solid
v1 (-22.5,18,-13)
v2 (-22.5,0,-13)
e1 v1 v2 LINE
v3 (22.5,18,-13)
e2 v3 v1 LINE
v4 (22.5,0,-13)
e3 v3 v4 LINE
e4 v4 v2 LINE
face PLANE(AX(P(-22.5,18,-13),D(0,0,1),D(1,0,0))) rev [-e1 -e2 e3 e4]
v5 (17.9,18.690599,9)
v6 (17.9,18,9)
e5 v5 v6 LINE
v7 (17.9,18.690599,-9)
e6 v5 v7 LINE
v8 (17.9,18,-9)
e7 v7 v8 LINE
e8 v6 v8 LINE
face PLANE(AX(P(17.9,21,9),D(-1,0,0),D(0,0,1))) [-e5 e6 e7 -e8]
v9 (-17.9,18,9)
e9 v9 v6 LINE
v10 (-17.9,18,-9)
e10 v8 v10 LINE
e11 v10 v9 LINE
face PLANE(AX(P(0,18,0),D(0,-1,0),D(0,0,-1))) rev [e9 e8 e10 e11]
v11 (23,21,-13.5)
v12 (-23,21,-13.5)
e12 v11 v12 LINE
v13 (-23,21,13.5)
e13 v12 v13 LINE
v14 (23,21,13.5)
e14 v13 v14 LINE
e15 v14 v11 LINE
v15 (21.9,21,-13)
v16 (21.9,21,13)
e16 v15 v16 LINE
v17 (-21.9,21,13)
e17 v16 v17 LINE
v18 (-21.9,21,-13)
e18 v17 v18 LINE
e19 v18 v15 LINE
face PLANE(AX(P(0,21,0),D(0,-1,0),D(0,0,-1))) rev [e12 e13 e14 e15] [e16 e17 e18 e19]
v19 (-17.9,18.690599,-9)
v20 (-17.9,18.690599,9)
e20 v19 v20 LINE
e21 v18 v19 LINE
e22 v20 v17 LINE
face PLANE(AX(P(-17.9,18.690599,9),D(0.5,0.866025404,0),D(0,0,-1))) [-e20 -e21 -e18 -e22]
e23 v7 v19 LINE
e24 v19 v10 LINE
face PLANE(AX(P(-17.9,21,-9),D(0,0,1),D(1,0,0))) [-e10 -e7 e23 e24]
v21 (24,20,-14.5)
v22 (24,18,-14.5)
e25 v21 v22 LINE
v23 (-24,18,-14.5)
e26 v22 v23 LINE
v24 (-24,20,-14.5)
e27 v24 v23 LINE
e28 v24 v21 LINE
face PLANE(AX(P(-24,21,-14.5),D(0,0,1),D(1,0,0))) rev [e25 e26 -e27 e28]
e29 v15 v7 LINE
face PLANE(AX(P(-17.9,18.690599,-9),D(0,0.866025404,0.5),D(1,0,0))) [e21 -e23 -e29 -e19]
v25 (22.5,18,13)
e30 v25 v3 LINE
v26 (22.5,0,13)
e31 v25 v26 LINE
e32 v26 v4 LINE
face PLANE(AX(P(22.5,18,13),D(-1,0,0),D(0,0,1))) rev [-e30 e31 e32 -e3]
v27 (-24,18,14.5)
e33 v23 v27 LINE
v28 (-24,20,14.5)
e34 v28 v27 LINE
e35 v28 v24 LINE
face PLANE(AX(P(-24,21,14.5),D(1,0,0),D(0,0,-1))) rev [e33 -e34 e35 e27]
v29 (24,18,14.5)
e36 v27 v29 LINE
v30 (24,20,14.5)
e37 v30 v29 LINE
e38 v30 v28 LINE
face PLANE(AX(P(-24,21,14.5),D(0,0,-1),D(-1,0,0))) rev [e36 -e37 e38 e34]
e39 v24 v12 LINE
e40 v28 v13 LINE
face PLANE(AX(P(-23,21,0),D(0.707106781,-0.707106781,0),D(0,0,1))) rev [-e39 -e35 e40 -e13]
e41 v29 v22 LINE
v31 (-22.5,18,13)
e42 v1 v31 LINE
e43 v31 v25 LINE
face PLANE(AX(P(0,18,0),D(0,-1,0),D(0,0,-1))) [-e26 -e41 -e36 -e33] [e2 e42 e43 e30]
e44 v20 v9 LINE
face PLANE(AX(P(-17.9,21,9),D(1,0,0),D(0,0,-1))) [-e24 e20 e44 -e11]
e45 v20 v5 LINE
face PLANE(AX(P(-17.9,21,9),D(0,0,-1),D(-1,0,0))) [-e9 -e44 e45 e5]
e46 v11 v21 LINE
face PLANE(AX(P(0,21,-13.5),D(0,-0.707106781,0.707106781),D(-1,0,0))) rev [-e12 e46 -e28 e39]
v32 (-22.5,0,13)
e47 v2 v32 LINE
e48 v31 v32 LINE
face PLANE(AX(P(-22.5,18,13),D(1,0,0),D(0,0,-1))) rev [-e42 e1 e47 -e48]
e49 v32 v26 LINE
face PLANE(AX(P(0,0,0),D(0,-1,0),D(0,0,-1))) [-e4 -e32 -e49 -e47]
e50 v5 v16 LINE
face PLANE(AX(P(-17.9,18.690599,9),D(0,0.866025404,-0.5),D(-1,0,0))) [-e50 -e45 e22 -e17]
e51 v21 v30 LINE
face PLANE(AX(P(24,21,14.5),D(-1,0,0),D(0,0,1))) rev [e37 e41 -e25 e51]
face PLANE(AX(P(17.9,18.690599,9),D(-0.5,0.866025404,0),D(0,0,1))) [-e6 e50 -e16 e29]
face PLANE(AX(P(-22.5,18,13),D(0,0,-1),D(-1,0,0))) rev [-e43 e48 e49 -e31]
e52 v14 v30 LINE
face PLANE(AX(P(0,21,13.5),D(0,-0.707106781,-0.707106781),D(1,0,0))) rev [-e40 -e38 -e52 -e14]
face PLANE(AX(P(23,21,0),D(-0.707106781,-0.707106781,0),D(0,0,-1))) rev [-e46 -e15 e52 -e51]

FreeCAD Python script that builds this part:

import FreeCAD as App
import Part
import Sketcher
from FreeCAD import Vector


def edges_at(feature, points):
    """Names of the edges that pass closest to the given points."""
    edges = feature.Shape.Edges
    near = lambda p: min(range(len(edges)), key=lambda i: edges[i].distToShape(Part.Vertex(*p))[0])
    return sorted({f"Edge{near(p) + 1}" for p in points})


def add_polygon(sketch, points):
    """Adds a closed chain of lines whose ends are joined by coincident constraints."""
    first, n = sketch.GeometryCount, len(points)
    for a, b in zip(points, points[1:] + points[:1]):
        sketch.addGeometry(Part.LineSegment(App.Vector(*a, 0), App.Vector(*b, 0)), False)
    for i in range(n):
        sketch.addConstraint(Sketcher.Constraint("Coincident", first + i, 2, first + (i + 1) % n, 1))

doc = App.newDocument("Part")
body = doc.addObject("PartDesign::Body", "Body")

# Sketch on XZ plane
sketch1 = body.newObject("Sketcher::SketchObject", "Sketch")
sketch1.AttachmentSupport = (doc.getObject("XZ_Plane"), [""])
sketch1.MapMode = "FlatFace"
add_polygon(sketch1, [(-22, -13), (-22, 13), (22, 13), (22, -13)])  # lines 0-3
sketch1.addConstraint(Sketcher.Constraint("Vertical", 0))
sketch1.addConstraint(Sketcher.Constraint("Horizontal", 1))
sketch1.addConstraint(Sketcher.Constraint("Vertical", 2))
sketch1.addConstraint(Sketcher.Constraint("Horizontal", 3))
sketch1.addConstraint(Sketcher.Constraint("Symmetric", 0, 2, 2, 2, -1, 1))
sketch1.addConstraint(Sketcher.Constraint("DistanceX", 1, 1, 1, 2, 45.0))
sketch1.addConstraint(Sketcher.Constraint("DistanceY", 0, 1, 0, 2, 26.0))
pad1 = body.newObject("PartDesign::Pad", "Pad")
pad1.Profile = sketch1
pad1.Length = 18
pad1.Reversed = True

# Sketch on XZ plane
sketch2 = body.newObject("Sketcher::SketchObject", "Sketch001")
sketch2.AttachmentSupport = (doc.getObject("XZ_Plane"), [""])
sketch2.MapMode = "FlatFace"
sketch2.AttachmentOffset = App.Placement(Vector(0, 0, -18), App.Rotation())
add_polygon(sketch2, [(-24, -14), (-24, 14), (24, 14), (24, -14)])  # lines 0-3
add_polygon(sketch2, [(18, 9), (-18, 9), (-18, -9), (18, -9)])  # lines 4-7
sketch2.addConstraint(Sketcher.Constraint("Vertical", 0))
sketch2.addConstraint(Sketcher.Constraint("Horizontal", 1))
sketch2.addConstraint(Sketcher.Constraint("Vertical", 2))
sketch2.addConstraint(Sketcher.Constraint("Horizontal", 3))
sketch2.addConstraint(Sketcher.Constraint("Horizontal", 4))
sketch2.addConstraint(Sketcher.Constraint("Vertical", 5))
sketch2.addConstraint(Sketcher.Constraint("Horizontal", 6))
sketch2.addConstraint(Sketcher.Constraint("Vertical", 7))
sketch2.addConstraint(Sketcher.Constraint("Symmetric", 0, 2, 2, 2, -1, 1))
sketch2.addConstraint(Sketcher.Constraint("Symmetric", 4, 2, 6, 2, -1, 1))
sketch2.addConstraint(Sketcher.Constraint("DistanceX", 1, 1, 1, 2, 48.0))
sketch2.addConstraint(Sketcher.Constraint("DistanceY", 0, 1, 0, 2, 29.0))
sketch2.addConstraint(Sketcher.Constraint("DistanceY", 5, 2, 5, 1, 18.0))
sketch2.addConstraint(Sketcher.Constraint("DistanceX", 4, 2, 4, 1, 35.8))
pad2 = body.newObject("PartDesign::Pad", "Pad001")
pad2.Profile = sketch2
pad2.Length = 3
pad2.Reversed = True
doc.recompute()

chamfer = body.newObject("PartDesign::Chamfer", "Chamfer")
chamfer.Base = (pad2, edges_at(pad2, [
    (24, 21, 0),
    (0, 21, -14.5),
    (-24, 21, 0),
    (0, 21, 14.5),
]))
chamfer.Size = 1
doc.recompute()

chamfer2 = body.newObject("PartDesign::Chamfer", "Chamfer001")
chamfer2.Base = (chamfer, edges_at(chamfer, [
    (17.9, 21, 0),
    (0, 21, -9),
    (-17.9, 21, 0),
    (0, 21, 9),
]))
chamfer2.ChamferType = "Two distances"
chamfer2.Size = 4
chamfer2.Size2 = 2.309401

doc.recompute()
